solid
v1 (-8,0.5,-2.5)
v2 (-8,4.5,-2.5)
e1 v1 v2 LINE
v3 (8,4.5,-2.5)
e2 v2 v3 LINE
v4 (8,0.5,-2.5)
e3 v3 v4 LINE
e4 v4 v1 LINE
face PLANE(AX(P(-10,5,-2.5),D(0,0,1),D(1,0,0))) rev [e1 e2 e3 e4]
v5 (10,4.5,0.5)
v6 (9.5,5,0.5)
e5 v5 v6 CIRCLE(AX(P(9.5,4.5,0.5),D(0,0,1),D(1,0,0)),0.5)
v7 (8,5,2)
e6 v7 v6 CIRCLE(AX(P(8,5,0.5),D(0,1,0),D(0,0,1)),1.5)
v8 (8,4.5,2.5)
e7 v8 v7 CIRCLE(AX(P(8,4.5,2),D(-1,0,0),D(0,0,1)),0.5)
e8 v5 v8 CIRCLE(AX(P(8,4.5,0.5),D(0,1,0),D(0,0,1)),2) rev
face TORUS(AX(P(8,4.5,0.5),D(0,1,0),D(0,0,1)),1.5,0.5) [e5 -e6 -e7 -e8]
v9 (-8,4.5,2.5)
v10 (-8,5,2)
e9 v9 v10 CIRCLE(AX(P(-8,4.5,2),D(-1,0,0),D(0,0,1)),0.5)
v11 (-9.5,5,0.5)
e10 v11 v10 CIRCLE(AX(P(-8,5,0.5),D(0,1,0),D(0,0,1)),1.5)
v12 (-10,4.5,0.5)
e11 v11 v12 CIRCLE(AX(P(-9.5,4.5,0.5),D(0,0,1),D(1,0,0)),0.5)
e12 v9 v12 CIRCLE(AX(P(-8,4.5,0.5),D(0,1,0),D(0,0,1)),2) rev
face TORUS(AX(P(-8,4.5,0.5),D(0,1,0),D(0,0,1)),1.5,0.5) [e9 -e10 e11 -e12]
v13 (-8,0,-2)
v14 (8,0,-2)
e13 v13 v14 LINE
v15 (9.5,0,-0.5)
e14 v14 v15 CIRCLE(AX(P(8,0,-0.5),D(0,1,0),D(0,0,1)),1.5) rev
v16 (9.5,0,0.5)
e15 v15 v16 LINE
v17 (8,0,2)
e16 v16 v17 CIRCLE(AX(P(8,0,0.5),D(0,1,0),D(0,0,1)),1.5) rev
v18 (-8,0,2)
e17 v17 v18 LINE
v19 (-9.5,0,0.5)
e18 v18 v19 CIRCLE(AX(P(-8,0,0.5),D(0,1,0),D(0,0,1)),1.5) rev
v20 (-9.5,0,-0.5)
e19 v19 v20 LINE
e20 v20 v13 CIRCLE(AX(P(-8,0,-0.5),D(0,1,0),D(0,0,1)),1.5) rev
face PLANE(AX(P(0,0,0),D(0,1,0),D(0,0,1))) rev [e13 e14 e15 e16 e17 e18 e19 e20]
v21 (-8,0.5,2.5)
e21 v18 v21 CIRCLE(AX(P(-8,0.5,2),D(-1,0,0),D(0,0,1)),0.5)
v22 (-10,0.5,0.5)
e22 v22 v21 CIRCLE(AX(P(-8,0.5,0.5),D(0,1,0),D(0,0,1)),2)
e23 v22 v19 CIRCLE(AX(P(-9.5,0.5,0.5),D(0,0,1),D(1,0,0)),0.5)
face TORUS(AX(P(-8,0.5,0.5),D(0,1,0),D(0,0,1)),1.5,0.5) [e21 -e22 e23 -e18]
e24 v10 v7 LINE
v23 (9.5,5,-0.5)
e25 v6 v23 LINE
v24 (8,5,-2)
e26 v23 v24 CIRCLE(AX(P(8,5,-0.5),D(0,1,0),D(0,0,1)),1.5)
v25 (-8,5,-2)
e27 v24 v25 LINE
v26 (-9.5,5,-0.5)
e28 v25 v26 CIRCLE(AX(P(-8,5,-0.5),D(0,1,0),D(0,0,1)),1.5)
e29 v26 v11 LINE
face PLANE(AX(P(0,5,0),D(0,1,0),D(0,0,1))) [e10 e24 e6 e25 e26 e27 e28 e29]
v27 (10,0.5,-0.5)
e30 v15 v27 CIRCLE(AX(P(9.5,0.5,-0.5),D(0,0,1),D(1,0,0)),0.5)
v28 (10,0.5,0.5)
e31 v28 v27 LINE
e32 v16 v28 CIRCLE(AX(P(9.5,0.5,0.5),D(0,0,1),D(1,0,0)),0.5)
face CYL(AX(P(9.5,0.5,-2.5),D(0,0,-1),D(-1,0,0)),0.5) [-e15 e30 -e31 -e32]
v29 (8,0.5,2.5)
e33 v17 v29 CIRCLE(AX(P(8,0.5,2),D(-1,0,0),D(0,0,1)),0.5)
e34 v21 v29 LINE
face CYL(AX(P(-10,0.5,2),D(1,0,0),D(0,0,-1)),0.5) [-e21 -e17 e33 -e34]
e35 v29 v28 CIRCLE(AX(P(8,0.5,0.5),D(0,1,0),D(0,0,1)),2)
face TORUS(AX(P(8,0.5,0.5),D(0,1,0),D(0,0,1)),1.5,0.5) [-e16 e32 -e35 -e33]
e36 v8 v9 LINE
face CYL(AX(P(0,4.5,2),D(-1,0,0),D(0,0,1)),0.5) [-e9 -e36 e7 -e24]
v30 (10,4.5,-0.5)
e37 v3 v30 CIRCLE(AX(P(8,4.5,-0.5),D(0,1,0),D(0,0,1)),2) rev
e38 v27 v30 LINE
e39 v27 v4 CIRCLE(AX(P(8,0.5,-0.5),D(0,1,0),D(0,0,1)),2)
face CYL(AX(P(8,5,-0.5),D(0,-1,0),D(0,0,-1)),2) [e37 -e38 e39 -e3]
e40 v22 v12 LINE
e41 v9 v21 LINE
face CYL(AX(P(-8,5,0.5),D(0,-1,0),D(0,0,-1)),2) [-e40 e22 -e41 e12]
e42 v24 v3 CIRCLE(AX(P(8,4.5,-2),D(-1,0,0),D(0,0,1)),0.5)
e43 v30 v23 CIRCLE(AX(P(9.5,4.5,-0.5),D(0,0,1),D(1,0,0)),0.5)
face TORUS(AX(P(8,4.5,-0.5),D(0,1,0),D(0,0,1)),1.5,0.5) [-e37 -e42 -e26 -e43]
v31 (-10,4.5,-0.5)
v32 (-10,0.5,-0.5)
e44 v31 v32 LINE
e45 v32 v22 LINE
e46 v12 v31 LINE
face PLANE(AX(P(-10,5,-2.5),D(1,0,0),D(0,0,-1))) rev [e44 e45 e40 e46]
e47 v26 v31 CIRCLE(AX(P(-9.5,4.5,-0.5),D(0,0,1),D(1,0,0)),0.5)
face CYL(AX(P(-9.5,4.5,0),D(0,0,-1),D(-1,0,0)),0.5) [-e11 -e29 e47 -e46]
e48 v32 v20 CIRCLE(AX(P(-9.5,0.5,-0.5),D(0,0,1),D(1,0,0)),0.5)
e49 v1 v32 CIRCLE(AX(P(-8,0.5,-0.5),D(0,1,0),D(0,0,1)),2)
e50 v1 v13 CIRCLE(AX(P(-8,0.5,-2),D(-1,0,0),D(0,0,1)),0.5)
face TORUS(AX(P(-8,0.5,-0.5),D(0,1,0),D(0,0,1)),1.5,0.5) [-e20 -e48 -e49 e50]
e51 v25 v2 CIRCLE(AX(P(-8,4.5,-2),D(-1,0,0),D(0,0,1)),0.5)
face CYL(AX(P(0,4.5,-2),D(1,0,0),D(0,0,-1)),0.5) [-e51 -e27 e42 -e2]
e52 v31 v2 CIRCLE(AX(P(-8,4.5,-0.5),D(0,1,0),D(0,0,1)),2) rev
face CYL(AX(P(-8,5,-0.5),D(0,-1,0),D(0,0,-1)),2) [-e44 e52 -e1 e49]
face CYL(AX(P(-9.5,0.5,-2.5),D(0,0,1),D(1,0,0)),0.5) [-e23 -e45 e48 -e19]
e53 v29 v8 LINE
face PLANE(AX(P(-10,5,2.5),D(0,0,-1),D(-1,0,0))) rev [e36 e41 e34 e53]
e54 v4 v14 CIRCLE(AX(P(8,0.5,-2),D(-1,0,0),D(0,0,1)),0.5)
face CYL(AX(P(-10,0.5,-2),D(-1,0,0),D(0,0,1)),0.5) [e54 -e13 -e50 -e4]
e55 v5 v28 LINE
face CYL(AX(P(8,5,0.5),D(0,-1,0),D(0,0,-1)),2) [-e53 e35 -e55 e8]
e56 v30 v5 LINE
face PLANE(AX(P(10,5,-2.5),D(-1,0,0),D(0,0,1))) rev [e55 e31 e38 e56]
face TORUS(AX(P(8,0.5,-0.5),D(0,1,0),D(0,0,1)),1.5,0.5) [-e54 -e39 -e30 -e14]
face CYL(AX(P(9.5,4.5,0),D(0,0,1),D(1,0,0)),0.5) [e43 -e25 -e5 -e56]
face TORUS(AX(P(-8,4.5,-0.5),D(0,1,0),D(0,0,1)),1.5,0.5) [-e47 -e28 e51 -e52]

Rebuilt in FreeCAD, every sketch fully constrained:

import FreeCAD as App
import Part
import Sketcher
from FreeCAD import Vector
Q = App.Units.Quantity


def edges_at(feature, points):
    """Names of the edges that pass closest to the given points."""
    edges = feature.Shape.Edges
    near = lambda p: min(range(len(edges)), key=lambda i: edges[i].distToShape(Part.Vertex(*p))[0])
    return sorted({f"Edge{near(p) + 1}" for p in points})

doc = App.newDocument("Part")
body = doc.addObject("PartDesign::Body", "Body")

# Sketch on XZ plane
sketch1 = body.newObject("Sketcher::SketchObject", "Sketch")
sketch1.AttachmentSupport = (doc.getObject("XZ_Plane"), [""])
sketch1.MapMode = "FlatFace"
sketch1.addGeometry(Part.LineSegment(Vector(-10, -2, 0), Vector(-10, 2, 0)), False)
sketch1.addGeometry(Part.LineSegment(Vector(-10, 2, 0), Vector(10, 2, 0)), False)
sketch1.addGeometry(Part.LineSegment(Vector(10, 2, 0), Vector(10, -2, 0)), False)
sketch1.addGeometry(Part.LineSegment(Vector(10, -2, 0), Vector(-10, -2, 0)), False)
sketch1.addConstraint(Sketcher.Constraint("Coincident", 0, 2, 1, 1))
sketch1.addConstraint(Sketcher.Constraint("Coincident", 1, 2, 2, 1))
sketch1.addConstraint(Sketcher.Constraint("Coincident", 2, 2, 3, 1))
sketch1.addConstraint(Sketcher.Constraint("Coincident", 3, 2, 0, 1))
sketch1.addConstraint(Sketcher.Constraint("Vertical", 0))
sketch1.addConstraint(Sketcher.Constraint("Horizontal", 1))
sketch1.addConstraint(Sketcher.Constraint("Vertical", 2))
sketch1.addConstraint(Sketcher.Constraint("Horizontal", 3))
sketch1.addConstraint(Sketcher.Constraint("Symmetric", 0, 2, 2, 2, -1, 1))
sketch1.addConstraint(Sketcher.Constraint("DistanceX", 1, 1, 1, 2, Q("20 mm")))
sketch1.addConstraint(Sketcher.Constraint("DistanceY", 0, 1, 0, 2, Q("5 mm")))
pad1 = body.newObject("PartDesign::Pad", "Pad")
pad1.Profile = sketch1
pad1.Length = 5
pad1.Reversed = True
doc.recompute()

fillet = body.newObject("PartDesign::Fillet", "Fillet")
fillet.Base = (pad1, edges_at(pad1, [
    (10, 2.5, 2.5),
    (-10, 2.5, 2.5),
    (-10, 2.5, -2.5),
    (10, 2.5, -2.5),
]))
fillet.Radius = 2
doc.recompute()

fillet2 = body.newObject("PartDesign::Fillet", "Fillet001")
fillet2.Base = (fillet, edges_at(fillet, [
    (-10, 0, 0),
    (-10, 5, 0),
    (10, 0, 0),
    (0, 0, 2.5),
    (0, 0, -2.5),
    (9.414, 0, -1.914),
    (9.414, 0, 1.914),
    (-9.414, 0, 1.914),
    (-9.414, 0, -1.914),
    (0, 5, -2.5),
    (10, 5, 0),
    (0, 5, 2.5),
    (9.414, 5, -1.914),
    (9.414, 5, 1.914),
    (-9.414, 5, 1.914),
    (-9.414, 5, -1.914),
]))
fillet2.Radius = 0.5

doc.recompute()
